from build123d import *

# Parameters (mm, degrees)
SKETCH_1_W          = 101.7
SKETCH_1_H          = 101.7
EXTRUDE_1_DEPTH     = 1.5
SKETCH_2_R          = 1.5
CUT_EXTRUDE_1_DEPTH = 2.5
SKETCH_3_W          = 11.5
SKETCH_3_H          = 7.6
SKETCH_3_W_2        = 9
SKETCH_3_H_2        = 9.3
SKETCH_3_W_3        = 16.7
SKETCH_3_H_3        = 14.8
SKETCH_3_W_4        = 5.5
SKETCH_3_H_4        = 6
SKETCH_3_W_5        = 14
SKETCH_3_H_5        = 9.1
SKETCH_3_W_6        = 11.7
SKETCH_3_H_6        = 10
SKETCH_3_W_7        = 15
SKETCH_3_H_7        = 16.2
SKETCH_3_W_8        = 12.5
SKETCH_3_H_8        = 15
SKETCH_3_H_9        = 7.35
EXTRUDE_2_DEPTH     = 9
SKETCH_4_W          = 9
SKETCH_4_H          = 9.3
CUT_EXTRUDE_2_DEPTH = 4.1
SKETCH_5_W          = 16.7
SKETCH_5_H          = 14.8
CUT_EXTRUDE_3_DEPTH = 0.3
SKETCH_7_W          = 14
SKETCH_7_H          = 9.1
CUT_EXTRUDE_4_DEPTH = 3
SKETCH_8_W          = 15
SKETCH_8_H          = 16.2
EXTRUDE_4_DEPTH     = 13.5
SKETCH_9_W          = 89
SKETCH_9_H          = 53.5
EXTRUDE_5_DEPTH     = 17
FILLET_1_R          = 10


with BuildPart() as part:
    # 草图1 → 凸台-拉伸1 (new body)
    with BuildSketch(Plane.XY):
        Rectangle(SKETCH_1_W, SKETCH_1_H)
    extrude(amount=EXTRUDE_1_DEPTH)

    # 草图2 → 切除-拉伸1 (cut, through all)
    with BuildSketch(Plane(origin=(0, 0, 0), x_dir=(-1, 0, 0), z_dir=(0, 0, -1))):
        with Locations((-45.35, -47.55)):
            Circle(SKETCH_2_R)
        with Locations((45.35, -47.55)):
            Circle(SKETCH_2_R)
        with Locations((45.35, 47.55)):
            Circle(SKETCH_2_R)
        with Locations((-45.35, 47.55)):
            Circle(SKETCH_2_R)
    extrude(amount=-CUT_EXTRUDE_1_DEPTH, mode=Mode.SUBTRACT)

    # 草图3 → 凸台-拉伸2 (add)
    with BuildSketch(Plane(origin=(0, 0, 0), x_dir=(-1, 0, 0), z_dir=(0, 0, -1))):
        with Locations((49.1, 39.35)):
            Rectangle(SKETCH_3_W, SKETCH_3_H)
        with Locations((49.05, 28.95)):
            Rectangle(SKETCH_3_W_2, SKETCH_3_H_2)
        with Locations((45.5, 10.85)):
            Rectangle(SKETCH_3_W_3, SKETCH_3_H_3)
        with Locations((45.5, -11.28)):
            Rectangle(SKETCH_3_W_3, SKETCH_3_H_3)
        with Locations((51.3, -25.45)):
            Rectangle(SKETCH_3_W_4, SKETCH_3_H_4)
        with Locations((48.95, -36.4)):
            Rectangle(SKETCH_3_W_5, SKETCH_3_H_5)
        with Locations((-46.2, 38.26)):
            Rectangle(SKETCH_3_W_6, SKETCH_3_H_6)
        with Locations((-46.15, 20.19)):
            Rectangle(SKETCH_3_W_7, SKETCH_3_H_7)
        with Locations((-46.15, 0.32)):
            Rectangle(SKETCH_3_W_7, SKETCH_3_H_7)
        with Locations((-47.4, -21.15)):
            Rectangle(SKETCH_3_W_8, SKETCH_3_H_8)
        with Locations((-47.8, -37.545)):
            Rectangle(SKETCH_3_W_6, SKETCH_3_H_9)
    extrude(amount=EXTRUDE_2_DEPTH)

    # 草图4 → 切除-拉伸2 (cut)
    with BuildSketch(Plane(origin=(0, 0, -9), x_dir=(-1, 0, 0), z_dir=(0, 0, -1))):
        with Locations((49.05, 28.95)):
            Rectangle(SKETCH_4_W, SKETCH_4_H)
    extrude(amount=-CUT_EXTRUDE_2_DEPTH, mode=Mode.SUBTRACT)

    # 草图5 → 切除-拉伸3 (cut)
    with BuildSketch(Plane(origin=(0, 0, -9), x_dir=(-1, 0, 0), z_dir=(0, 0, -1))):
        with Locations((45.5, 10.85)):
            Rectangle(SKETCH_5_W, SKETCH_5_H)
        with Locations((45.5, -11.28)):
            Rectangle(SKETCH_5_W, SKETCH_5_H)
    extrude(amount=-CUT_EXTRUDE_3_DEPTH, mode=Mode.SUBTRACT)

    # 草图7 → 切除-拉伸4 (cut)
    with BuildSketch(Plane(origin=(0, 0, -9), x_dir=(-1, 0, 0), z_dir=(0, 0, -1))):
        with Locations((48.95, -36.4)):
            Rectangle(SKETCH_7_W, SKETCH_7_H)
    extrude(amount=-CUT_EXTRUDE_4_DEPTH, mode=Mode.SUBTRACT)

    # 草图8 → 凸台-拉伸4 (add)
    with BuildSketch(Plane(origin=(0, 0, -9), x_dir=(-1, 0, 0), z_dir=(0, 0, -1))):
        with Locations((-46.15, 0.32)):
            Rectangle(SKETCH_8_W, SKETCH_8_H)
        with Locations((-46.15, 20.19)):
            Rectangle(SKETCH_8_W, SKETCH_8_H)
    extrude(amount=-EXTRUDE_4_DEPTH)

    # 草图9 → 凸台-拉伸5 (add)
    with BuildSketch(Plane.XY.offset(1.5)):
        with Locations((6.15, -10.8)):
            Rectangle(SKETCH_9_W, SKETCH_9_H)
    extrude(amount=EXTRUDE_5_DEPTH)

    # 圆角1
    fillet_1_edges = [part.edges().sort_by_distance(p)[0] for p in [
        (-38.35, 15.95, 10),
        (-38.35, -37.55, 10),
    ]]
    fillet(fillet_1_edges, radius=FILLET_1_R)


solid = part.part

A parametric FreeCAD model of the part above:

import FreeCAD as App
import Part
import Sketcher

V = App.Vector
Q = App.Units.Quantity


def edges_at(feature, points):
    """Names of the edges that pass closest to the given points."""
    edges = feature.Shape.Edges
    near = lambda p: min(range(len(edges)), key=lambda i: edges[i].distToShape(Part.Vertex(*p))[0])
    return sorted({f"Edge{near(p) + 1}" for p in points})


def add_polygon(sketch, points):
    """Adds a closed chain of lines whose ends are joined by coincident constraints."""
    first, n = sketch.GeometryCount, len(points)
    for a, b in zip(points, points[1:] + points[:1]):
        sketch.addGeometry(Part.LineSegment(App.Vector(*a, 0), App.Vector(*b, 0)), False)
    for i in range(n):
        sketch.addConstraint(Sketcher.Constraint("Coincident", first + i, 2, first + (i + 1) % n, 1))

doc = App.newDocument("Part")
body = doc.addObject("PartDesign::Body", "Body")

sketch1 = body.newObject("Sketcher::SketchObject", "Sketch")
sketch1.AttachmentSupport = (doc.getObject("XY_Plane"), [""])
sketch1.MapMode = "FlatFace"
add_polygon(sketch1, [(-51, 51), (-51, -51), (51, -51), (51, 51)])
sketch1.addConstraint([
    Sketcher.Constraint("Vertical", 0),
    Sketcher.Constraint("Horizontal", 1),
    Sketcher.Constraint("Vertical", 2),
    Sketcher.Constraint("Horizontal", 3),
    Sketcher.Constraint("Symmetric", 0, 2, 2, 2, -1, 1),
    Sketcher.Constraint("Equal", 3, 0),
    Sketcher.Constraint("DistanceX", 1, 1, 1, 2, Q("101.7 mm")),
])
pad1 = body.newObject("PartDesign::Pad", "Pad")
pad1.Profile = sketch1
pad1.Length = 1.5

sketch2 = body.newObject("Sketcher::SketchObject", "Sketch001")
sketch2.AttachmentSupport = (doc.getObject("XY_Plane"), [""])
sketch2.MapMode = "FlatFace"
sketch2.addGeometry([
    Part.Circle(V(45.4, -47.5, 0), V(0, 0, 1), 1.5),
    Part.Circle(V(-45.4, -47.5, 0), V(0, 0, 1), 1.5),
    Part.Circle(V(-45.4, 47.5, 0), V(0, 0, 1), 1.5),
    Part.Circle(V(45.4, 47.5, 0), V(0, 0, 1), 1.5),
], False)
sketch2.addConstraint([
    Sketcher.Constraint("Equal", 0, 1),
    Sketcher.Constraint("Equal", 1, 2),
    Sketcher.Constraint("Equal", 2, 3),
    Sketcher.Constraint("Symmetric", 0, 3, 2, 3, -1, 1),
    Sketcher.Constraint("Symmetric", 1, 3, 3, 3, -1, 1),
    Sketcher.Constraint("Symmetric", 0, 3, 1, 3, -2),
    Sketcher.Constraint("Diameter", 0, Q("3 mm")),
    Sketcher.Constraint("DistanceX", 1, 3, 0, 3, Q("90.7 mm")),
    Sketcher.Constraint("DistanceY", 1, 3, 2, 3, Q("95.1 mm")),
])
pocket1 = body.newObject("PartDesign::Pocket", "Pocket")
pocket1.Profile = sketch2
pocket1.Type = "ThroughAll"
pocket1.Reversed = True

sketch3 = body.newObject("Sketcher::SketchObject", "Sketch002")
sketch3.AttachmentSupport = (doc.getObject("XY_Plane"), [""])
sketch3.MapMode = "FlatFace"
add_polygon(sketch3, [(-43, 43), (-43, 36), (-55, 36), (-55, 43)])
add_polygon(sketch3, [(-45, 34), (-45, 24), (-54, 24), (-54, 34)])
add_polygon(sketch3, [(-37, 18), (-37, 3), (-54, 3), (-54, 18)])
add_polygon(sketch3, [(-37, -4), (-37, -19), (-54, -19), (-54, -4)])
add_polygon(sketch3, [(-49, -22), (-49, -28), (-54, -28), (-54, -22)])
add_polygon(sketch3, [(-42, -32), (-42, -41), (-56, -41), (-56, -32)])
add_polygon(sketch3, [(52, 43), (52, 33), (40, 33), (40, 43)])
add_polygon(sketch3, [(54, 28), (54, 12), (39, 12), (39, 28)])
add_polygon(sketch3, [(54, 8), (54, -8), (39, -8), (39, 8)])
add_polygon(sketch3, [(54, -14), (54, -29), (41, -29), (41, -14)])
add_polygon(sketch3, [(54, -34), (54, -41), (42, -41), (42, -34)])
sketch3.addConstraint([
    Sketcher.Constraint("Vertical", 0),
    Sketcher.Constraint("Horizontal", 1),
    Sketcher.Constraint("Vertical", 2),
    Sketcher.Constraint("Horizontal", 3),
    Sketcher.Constraint("Vertical", 4),
    Sketcher.Constraint("Horizontal", 5),
    Sketcher.Constraint("Vertical", 6),
    Sketcher.Constraint("Horizontal", 7),
    Sketcher.Constraint("Vertical", 8),
    Sketcher.Constraint("Horizontal", 9),
    Sketcher.Constraint("Vertical", 10),
    Sketcher.Constraint("Horizontal", 11),
    Sketcher.Constraint("Vertical", 12),
    Sketcher.Constraint("Horizontal", 13),
    Sketcher.Constraint("Vertical", 14),
    Sketcher.Constraint("Horizontal", 15),
    Sketcher.Constraint("Vertical", 16),
    Sketcher.Constraint("Horizontal", 17),
    Sketcher.Constraint("Vertical", 18),
    Sketcher.Constraint("Horizontal", 19),
    Sketcher.Constraint("Vertical", 20),
    Sketcher.Constraint("Horizontal", 21),
    Sketcher.Constraint("Vertical", 22),
    Sketcher.Constraint("Horizontal", 23),
    Sketcher.Constraint("Vertical", 24),
    Sketcher.Constraint("Horizontal", 25),
    Sketcher.Constraint("Vertical", 26),
    Sketcher.Constraint("Horizontal", 27),
    Sketcher.Constraint("Vertical", 28),
    Sketcher.Constraint("Horizontal", 29),
    Sketcher.Constraint("Vertical", 30),
    Sketcher.Constraint("Horizontal", 31),
    Sketcher.Constraint("Vertical", 32),
    Sketcher.Constraint("Horizontal", 33),
    Sketcher.Constraint("Vertical", 34),
    Sketcher.Constraint("Horizontal", 35),
    Sketcher.Constraint("Vertical", 36),
    Sketcher.Constraint("Horizontal", 37),
    Sketcher.Constraint("Vertical", 38),
    Sketcher.Constraint("Horizontal", 39),
    Sketcher.Constraint("Vertical", 40),
    Sketcher.Constraint("Horizontal", 41),
    Sketcher.Constraint("Vertical", 42),
    Sketcher.Constraint("Horizontal", 43),
    Sketcher.Constraint("Vertical", 11, 2, 12, 2),
    Sketcher.Constraint("Vertical", 10, 2, 13, 2),
    Sketcher.Constraint("Vertical", 31, 2, 32, 2),
    Sketcher.Constraint("Vertical", 30, 2, 33, 2),
    Sketcher.Constraint("Vertical", 35, 2, 36, 2),
    Sketcher.Constraint("Vertical", 39, 2, 40, 2),
    Sketcher.Constraint("Equal", 27, 41),
    Sketcher.Constraint("Equal", 10, 12),
    Sketcher.Constraint("Equal", 30, 32),
    Sketcher.Constraint("Equal", 35, 36),
    Sketcher.Constraint("DistanceX", 5, 2, 5, 1, Q("9 mm")),
    Sketcher.Constraint("DistanceX", 21, 2, 21, 1, Q("14 mm")),
    Sketcher.Constraint("DistanceX", 29, 2, 29, 1, Q("15 mm")),
    Sketcher.Constraint("DistanceY", 16, 2, 16, 1, Q("6 mm")),
    Sketcher.Constraint("DistanceY", 24, 2, 24, 1, Q("10 mm")),
    Sketcher.Constraint("DistanceX", 1, 2, 1, 1, Q("11.5 mm")),
    Sketcher.Constraint("DistanceX", 9, 2, 9, 1, Q("16.7 mm")),
    Sketcher.Constraint("DistanceX", 17, 2, 17, 1, Q("5.5 mm")),
    Sketcher.Constraint("DistanceX", 25, 2, 25, 1, Q("11.7 mm")),
    Sketcher.Constraint("DistanceX", 37, 2, 37, 1, Q("12.5 mm")),
    Sketcher.Constraint("DistanceY", 0, 2, 0, 1, Q("7.6 mm")),
    Sketcher.Constraint("DistanceY", 4, 2, 4, 1, Q("9.3 mm")),
    Sketcher.Constraint("DistanceY", 8, 2, 8, 1, Q("14.8 mm")),
    Sketcher.Constraint("DistanceY", 20, 2, 20, 1, Q("9.1 mm")),
    Sketcher.Constraint("DistanceY", 28, 2, 28, 1, Q("16.2 mm")),
    Sketcher.Constraint("DistanceX", 1, 2, 10, 2, Q("1 mm")),
    Sketcher.Constraint("DistanceY", 40, 2, 40, 1, Q("7.35 mm")),
    Sketcher.Constraint("DistanceY", -1, 1, 4, 2, Q("24.3 mm")),
    Sketcher.Constraint("DistanceX", 4, 2, 0, 2, Q("1.2 mm")),
    Sketcher.Constraint("DistanceY", 8, 2, 0, 2, Q("32.1 mm")),
    Sketcher.Constraint("DistanceX", 13, 2, 16, 2, Q("5.3 mm")),
    Sketcher.Constraint("DistanceY", 16, 2, 9, 2, Q("31.9 mm")),
    Sketcher.Constraint("DistanceX", 16, 2, 20, 2, Q("6.6 mm")),
    Sketcher.Constraint("DistanceY", 20, 2, 16, 2, Q("12.5 mm")),
    Sketcher.Constraint("DistanceX", 11, 2, 24, 2, Q("89.2 mm")),
    Sketcher.Constraint("DistanceX", 24, 2, 28, 2, Q("1.6 mm")),
    Sketcher.Constraint("DistanceX", 0, 2, -1, 1, Q("43.35 mm")),
    Sketcher.Constraint("DistanceY", -1, 1, 0, 2, Q("35.55 mm")),
    Sketcher.Constraint("DistanceY", 12, 2, -1, 1, Q("18.68 mm")),
    Sketcher.Constraint("DistanceY", -1, 1, 24, 2, Q("33.26 mm")),
    Sketcher.Constraint("DistanceY", -1, 1, 28, 2, Q("12.09 mm")),
    Sketcher.Constraint("DistanceY", 32, 2, -1, 1, Q("7.78 mm")),
    Sketcher.Constraint("DistanceY", 36, 2, -1, 1, Q("28.65 mm")),
    Sketcher.Constraint("DistanceY", 40, 2, -1, 1, Q("41.22 mm")),
])
pad2 = body.newObject("PartDesign::Pad", "Pad001")
pad2.Profile = sketch3
pad2.Length = 9
pad2.Reversed = True

sketch4 = body.newObject("Sketcher::SketchObject", "Sketch003")
sketch4.AttachmentSupport = (doc.getObject("XY_Plane"), [""])
sketch4.MapMode = "FlatFace"
sketch4.AttachmentOffset = App.Placement(V(0, 0, -9), App.Rotation())
add_polygon(sketch4, [(-45, 34), (-45, 24), (-54, 24), (-54, 34)])
sketch4.addConstraint([
    Sketcher.Constraint("Vertical", 0),
    Sketcher.Constraint("Horizontal", 1),
    Sketcher.Constraint("Vertical", 2),
    Sketcher.Constraint("Horizontal", 3),
    Sketcher.Constraint("DistanceX", 1, 2, 1, 1, Q("9 mm")),
    Sketcher.Constraint("DistanceY", 0, 2, 0, 1, Q("9.3 mm")),
    Sketcher.Constraint("DistanceY", -1, 1, 0, 2, Q("24.3 mm")),
    Sketcher.Constraint("DistanceX", 0, 2, -1, 1, Q("44.55 mm")),
])
pocket2 = body.newObject("PartDesign::Pocket", "Pocket001")
pocket2.Profile = sketch4
pocket2.Length = 4.1
pocket2.Reversed = True

sketch5 = body.newObject("Sketcher::SketchObject", "Sketch004")
sketch5.AttachmentSupport = (doc.getObject("XY_Plane"), [""])
sketch5.MapMode = "FlatFace"
sketch5.AttachmentOffset = App.Placement(V(0, 0, -9), App.Rotation())
add_polygon(sketch5, [(-37, 18), (-37, 3), (-54, 3), (-54, 18)])
add_polygon(sketch5, [(-37, -4), (-37, -19), (-54, -19), (-54, -4)])
sketch5.addConstraint([
    Sketcher.Constraint("Vertical", 0),
    Sketcher.Constraint("Horizontal", 1),
    Sketcher.Constraint("Vertical", 2),
    Sketcher.Constraint("Horizontal", 3),
    Sketcher.Constraint("Vertical", 4),
    Sketcher.Constraint("Horizontal", 5),
    Sketcher.Constraint("Vertical", 6),
    Sketcher.Constraint("Horizontal", 7),
    Sketcher.Constraint("Vertical", 3, 2, 4, 2),
    Sketcher.Constraint("Vertical", 2, 2, 5, 2),
    Sketcher.Constraint("Equal", 2, 4),
    Sketcher.Constraint("DistanceX", 1, 2, 1, 1, Q("16.7 mm")),
    Sketcher.Constraint("DistanceY", 0, 2, 0, 1, Q("14.8 mm")),
    Sketcher.Constraint("DistanceX", 0, 2, -1, 1, Q("37.15 mm")),
    Sketcher.Constraint("DistanceY", -1, 1, 0, 2, Q("3.45 mm")),
    Sketcher.Constraint("DistanceY", 4, 2, -1, 1, Q("18.68 mm")),
])
pocket3 = body.newObject("PartDesign::Pocket", "Pocket002")
pocket3.Profile = sketch5
pocket3.Length = 0.3
pocket3.Reversed = True

sketch6 = body.newObject("Sketcher::SketchObject", "Sketch005")
sketch6.AttachmentSupport = (doc.getObject("XY_Plane"), [""])
sketch6.MapMode = "FlatFace"
sketch6.AttachmentOffset = App.Placement(V(0, 0, -9), App.Rotation())
add_polygon(sketch6, [(-42, -32), (-42, -41), (-56, -41), (-56, -32)])
sketch6.addConstraint([
    Sketcher.Constraint("Vertical", 0),
    Sketcher.Constraint("Horizontal", 1),
    Sketcher.Constraint("Vertical", 2),
    Sketcher.Constraint("Horizontal", 3),
    Sketcher.Constraint("DistanceX", 1, 2, 1, 1, Q("14 mm")),
    Sketcher.Constraint("DistanceY", 0, 2, 0, 1, Q("9.1 mm")),
    Sketcher.Constraint("DistanceX", 0, 2, -1, 1, Q("41.95 mm")),
    Sketcher.Constraint("DistanceY", 0, 2, -1, 1, Q("40.95 mm")),
])
pocket4 = body.newObject("PartDesign::Pocket", "Pocket003")
pocket4.Profile = sketch6
pocket4.Length = 3
pocket4.Reversed = True

sketch7 = body.newObject("Sketcher::SketchObject", "Sketch006")
sketch7.AttachmentSupport = (doc.getObject("XY_Plane"), [""])
sketch7.MapMode = "FlatFace"
sketch7.AttachmentOffset = App.Placement(V(0, 0, -9), App.Rotation())
add_polygon(sketch7, [(54, 8), (54, -8), (39, -8), (39, 8)])
add_polygon(sketch7, [(54, 28), (54, 12), (39, 12), (39, 28)])
sketch7.addConstraint([
    Sketcher.Constraint("Vertical", 0),
    Sketcher.Constraint("Horizontal", 1),
    Sketcher.Constraint("Vertical", 2),
    Sketcher.Constraint("Horizontal", 3),
    Sketcher.Constraint("Vertical", 4),
    Sketcher.Constraint("Horizontal", 5),
    Sketcher.Constraint("Vertical", 6),
    Sketcher.Constraint("Horizontal", 7),
    Sketcher.Constraint("Vertical", 3, 2, 4, 2),
    Sketcher.Constraint("Vertical", 2, 2, 5, 2),
    Sketcher.Constraint("Equal", 2, 4),
    Sketcher.Constraint("DistanceX", 1, 2, 1, 1, Q("15 mm")),
    Sketcher.Constraint("DistanceY", 0, 2, 0, 1, Q("16.2 mm")),
    Sketcher.Constraint("DistanceX", -1, 1, 0, 2, Q("53.65 mm")),
    Sketcher.Constraint("DistanceY", 0, 2, -1, 1, Q("7.78 mm")),
    Sketcher.Constraint("DistanceY", -1, 1, 4, 2, Q("12.09 mm")),
])
pad3 = body.newObject("PartDesign::Pad", "Pad002")
pad3.Profile = sketch7
pad3.Length = 13.5

sketch8 = body.newObject("Sketcher::SketchObject", "Sketch007")
sketch8.AttachmentSupport = (doc.getObject("XY_Plane"), [""])
sketch8.MapMode = "FlatFace"
sketch8.AttachmentOffset = App.Placement(V(0, 0, 1.5), App.Rotation())
add_polygon(sketch8, [(-38, 16), (-38, -38), (51, -38), (51, 16)])
sketch8.addConstraint([
    Sketcher.Constraint("Vertical", 0),
    Sketcher.Constraint("Horizontal", 1),
    Sketcher.Constraint("Vertical", 2),
    Sketcher.Constraint("Horizontal", 3),
    Sketcher.Constraint("DistanceX", 1, 1, 1, 2, Q("89 mm")),
    Sketcher.Constraint("DistanceY", 0, 2, 0, 1, Q("53.5 mm")),
    Sketcher.Constraint("DistanceX", 0, 2, -1, 1, Q("38.35 mm")),
    Sketcher.Constraint("DistanceY", 0, 2, -1, 1, Q("37.55 mm")),
])
pad4 = body.newObject("PartDesign::Pad", "Pad003")
pad4.Profile = sketch8
pad4.Length = 17
doc.recompute()

fillet = body.newObject("PartDesign::Fillet", "Fillet")
fillet.Base = (pad4, edges_at(pad4, [(-38.35, 15.95, 10), (-38.35, -37.55, 10)]))
fillet.Radius = 10

doc.recompute()
